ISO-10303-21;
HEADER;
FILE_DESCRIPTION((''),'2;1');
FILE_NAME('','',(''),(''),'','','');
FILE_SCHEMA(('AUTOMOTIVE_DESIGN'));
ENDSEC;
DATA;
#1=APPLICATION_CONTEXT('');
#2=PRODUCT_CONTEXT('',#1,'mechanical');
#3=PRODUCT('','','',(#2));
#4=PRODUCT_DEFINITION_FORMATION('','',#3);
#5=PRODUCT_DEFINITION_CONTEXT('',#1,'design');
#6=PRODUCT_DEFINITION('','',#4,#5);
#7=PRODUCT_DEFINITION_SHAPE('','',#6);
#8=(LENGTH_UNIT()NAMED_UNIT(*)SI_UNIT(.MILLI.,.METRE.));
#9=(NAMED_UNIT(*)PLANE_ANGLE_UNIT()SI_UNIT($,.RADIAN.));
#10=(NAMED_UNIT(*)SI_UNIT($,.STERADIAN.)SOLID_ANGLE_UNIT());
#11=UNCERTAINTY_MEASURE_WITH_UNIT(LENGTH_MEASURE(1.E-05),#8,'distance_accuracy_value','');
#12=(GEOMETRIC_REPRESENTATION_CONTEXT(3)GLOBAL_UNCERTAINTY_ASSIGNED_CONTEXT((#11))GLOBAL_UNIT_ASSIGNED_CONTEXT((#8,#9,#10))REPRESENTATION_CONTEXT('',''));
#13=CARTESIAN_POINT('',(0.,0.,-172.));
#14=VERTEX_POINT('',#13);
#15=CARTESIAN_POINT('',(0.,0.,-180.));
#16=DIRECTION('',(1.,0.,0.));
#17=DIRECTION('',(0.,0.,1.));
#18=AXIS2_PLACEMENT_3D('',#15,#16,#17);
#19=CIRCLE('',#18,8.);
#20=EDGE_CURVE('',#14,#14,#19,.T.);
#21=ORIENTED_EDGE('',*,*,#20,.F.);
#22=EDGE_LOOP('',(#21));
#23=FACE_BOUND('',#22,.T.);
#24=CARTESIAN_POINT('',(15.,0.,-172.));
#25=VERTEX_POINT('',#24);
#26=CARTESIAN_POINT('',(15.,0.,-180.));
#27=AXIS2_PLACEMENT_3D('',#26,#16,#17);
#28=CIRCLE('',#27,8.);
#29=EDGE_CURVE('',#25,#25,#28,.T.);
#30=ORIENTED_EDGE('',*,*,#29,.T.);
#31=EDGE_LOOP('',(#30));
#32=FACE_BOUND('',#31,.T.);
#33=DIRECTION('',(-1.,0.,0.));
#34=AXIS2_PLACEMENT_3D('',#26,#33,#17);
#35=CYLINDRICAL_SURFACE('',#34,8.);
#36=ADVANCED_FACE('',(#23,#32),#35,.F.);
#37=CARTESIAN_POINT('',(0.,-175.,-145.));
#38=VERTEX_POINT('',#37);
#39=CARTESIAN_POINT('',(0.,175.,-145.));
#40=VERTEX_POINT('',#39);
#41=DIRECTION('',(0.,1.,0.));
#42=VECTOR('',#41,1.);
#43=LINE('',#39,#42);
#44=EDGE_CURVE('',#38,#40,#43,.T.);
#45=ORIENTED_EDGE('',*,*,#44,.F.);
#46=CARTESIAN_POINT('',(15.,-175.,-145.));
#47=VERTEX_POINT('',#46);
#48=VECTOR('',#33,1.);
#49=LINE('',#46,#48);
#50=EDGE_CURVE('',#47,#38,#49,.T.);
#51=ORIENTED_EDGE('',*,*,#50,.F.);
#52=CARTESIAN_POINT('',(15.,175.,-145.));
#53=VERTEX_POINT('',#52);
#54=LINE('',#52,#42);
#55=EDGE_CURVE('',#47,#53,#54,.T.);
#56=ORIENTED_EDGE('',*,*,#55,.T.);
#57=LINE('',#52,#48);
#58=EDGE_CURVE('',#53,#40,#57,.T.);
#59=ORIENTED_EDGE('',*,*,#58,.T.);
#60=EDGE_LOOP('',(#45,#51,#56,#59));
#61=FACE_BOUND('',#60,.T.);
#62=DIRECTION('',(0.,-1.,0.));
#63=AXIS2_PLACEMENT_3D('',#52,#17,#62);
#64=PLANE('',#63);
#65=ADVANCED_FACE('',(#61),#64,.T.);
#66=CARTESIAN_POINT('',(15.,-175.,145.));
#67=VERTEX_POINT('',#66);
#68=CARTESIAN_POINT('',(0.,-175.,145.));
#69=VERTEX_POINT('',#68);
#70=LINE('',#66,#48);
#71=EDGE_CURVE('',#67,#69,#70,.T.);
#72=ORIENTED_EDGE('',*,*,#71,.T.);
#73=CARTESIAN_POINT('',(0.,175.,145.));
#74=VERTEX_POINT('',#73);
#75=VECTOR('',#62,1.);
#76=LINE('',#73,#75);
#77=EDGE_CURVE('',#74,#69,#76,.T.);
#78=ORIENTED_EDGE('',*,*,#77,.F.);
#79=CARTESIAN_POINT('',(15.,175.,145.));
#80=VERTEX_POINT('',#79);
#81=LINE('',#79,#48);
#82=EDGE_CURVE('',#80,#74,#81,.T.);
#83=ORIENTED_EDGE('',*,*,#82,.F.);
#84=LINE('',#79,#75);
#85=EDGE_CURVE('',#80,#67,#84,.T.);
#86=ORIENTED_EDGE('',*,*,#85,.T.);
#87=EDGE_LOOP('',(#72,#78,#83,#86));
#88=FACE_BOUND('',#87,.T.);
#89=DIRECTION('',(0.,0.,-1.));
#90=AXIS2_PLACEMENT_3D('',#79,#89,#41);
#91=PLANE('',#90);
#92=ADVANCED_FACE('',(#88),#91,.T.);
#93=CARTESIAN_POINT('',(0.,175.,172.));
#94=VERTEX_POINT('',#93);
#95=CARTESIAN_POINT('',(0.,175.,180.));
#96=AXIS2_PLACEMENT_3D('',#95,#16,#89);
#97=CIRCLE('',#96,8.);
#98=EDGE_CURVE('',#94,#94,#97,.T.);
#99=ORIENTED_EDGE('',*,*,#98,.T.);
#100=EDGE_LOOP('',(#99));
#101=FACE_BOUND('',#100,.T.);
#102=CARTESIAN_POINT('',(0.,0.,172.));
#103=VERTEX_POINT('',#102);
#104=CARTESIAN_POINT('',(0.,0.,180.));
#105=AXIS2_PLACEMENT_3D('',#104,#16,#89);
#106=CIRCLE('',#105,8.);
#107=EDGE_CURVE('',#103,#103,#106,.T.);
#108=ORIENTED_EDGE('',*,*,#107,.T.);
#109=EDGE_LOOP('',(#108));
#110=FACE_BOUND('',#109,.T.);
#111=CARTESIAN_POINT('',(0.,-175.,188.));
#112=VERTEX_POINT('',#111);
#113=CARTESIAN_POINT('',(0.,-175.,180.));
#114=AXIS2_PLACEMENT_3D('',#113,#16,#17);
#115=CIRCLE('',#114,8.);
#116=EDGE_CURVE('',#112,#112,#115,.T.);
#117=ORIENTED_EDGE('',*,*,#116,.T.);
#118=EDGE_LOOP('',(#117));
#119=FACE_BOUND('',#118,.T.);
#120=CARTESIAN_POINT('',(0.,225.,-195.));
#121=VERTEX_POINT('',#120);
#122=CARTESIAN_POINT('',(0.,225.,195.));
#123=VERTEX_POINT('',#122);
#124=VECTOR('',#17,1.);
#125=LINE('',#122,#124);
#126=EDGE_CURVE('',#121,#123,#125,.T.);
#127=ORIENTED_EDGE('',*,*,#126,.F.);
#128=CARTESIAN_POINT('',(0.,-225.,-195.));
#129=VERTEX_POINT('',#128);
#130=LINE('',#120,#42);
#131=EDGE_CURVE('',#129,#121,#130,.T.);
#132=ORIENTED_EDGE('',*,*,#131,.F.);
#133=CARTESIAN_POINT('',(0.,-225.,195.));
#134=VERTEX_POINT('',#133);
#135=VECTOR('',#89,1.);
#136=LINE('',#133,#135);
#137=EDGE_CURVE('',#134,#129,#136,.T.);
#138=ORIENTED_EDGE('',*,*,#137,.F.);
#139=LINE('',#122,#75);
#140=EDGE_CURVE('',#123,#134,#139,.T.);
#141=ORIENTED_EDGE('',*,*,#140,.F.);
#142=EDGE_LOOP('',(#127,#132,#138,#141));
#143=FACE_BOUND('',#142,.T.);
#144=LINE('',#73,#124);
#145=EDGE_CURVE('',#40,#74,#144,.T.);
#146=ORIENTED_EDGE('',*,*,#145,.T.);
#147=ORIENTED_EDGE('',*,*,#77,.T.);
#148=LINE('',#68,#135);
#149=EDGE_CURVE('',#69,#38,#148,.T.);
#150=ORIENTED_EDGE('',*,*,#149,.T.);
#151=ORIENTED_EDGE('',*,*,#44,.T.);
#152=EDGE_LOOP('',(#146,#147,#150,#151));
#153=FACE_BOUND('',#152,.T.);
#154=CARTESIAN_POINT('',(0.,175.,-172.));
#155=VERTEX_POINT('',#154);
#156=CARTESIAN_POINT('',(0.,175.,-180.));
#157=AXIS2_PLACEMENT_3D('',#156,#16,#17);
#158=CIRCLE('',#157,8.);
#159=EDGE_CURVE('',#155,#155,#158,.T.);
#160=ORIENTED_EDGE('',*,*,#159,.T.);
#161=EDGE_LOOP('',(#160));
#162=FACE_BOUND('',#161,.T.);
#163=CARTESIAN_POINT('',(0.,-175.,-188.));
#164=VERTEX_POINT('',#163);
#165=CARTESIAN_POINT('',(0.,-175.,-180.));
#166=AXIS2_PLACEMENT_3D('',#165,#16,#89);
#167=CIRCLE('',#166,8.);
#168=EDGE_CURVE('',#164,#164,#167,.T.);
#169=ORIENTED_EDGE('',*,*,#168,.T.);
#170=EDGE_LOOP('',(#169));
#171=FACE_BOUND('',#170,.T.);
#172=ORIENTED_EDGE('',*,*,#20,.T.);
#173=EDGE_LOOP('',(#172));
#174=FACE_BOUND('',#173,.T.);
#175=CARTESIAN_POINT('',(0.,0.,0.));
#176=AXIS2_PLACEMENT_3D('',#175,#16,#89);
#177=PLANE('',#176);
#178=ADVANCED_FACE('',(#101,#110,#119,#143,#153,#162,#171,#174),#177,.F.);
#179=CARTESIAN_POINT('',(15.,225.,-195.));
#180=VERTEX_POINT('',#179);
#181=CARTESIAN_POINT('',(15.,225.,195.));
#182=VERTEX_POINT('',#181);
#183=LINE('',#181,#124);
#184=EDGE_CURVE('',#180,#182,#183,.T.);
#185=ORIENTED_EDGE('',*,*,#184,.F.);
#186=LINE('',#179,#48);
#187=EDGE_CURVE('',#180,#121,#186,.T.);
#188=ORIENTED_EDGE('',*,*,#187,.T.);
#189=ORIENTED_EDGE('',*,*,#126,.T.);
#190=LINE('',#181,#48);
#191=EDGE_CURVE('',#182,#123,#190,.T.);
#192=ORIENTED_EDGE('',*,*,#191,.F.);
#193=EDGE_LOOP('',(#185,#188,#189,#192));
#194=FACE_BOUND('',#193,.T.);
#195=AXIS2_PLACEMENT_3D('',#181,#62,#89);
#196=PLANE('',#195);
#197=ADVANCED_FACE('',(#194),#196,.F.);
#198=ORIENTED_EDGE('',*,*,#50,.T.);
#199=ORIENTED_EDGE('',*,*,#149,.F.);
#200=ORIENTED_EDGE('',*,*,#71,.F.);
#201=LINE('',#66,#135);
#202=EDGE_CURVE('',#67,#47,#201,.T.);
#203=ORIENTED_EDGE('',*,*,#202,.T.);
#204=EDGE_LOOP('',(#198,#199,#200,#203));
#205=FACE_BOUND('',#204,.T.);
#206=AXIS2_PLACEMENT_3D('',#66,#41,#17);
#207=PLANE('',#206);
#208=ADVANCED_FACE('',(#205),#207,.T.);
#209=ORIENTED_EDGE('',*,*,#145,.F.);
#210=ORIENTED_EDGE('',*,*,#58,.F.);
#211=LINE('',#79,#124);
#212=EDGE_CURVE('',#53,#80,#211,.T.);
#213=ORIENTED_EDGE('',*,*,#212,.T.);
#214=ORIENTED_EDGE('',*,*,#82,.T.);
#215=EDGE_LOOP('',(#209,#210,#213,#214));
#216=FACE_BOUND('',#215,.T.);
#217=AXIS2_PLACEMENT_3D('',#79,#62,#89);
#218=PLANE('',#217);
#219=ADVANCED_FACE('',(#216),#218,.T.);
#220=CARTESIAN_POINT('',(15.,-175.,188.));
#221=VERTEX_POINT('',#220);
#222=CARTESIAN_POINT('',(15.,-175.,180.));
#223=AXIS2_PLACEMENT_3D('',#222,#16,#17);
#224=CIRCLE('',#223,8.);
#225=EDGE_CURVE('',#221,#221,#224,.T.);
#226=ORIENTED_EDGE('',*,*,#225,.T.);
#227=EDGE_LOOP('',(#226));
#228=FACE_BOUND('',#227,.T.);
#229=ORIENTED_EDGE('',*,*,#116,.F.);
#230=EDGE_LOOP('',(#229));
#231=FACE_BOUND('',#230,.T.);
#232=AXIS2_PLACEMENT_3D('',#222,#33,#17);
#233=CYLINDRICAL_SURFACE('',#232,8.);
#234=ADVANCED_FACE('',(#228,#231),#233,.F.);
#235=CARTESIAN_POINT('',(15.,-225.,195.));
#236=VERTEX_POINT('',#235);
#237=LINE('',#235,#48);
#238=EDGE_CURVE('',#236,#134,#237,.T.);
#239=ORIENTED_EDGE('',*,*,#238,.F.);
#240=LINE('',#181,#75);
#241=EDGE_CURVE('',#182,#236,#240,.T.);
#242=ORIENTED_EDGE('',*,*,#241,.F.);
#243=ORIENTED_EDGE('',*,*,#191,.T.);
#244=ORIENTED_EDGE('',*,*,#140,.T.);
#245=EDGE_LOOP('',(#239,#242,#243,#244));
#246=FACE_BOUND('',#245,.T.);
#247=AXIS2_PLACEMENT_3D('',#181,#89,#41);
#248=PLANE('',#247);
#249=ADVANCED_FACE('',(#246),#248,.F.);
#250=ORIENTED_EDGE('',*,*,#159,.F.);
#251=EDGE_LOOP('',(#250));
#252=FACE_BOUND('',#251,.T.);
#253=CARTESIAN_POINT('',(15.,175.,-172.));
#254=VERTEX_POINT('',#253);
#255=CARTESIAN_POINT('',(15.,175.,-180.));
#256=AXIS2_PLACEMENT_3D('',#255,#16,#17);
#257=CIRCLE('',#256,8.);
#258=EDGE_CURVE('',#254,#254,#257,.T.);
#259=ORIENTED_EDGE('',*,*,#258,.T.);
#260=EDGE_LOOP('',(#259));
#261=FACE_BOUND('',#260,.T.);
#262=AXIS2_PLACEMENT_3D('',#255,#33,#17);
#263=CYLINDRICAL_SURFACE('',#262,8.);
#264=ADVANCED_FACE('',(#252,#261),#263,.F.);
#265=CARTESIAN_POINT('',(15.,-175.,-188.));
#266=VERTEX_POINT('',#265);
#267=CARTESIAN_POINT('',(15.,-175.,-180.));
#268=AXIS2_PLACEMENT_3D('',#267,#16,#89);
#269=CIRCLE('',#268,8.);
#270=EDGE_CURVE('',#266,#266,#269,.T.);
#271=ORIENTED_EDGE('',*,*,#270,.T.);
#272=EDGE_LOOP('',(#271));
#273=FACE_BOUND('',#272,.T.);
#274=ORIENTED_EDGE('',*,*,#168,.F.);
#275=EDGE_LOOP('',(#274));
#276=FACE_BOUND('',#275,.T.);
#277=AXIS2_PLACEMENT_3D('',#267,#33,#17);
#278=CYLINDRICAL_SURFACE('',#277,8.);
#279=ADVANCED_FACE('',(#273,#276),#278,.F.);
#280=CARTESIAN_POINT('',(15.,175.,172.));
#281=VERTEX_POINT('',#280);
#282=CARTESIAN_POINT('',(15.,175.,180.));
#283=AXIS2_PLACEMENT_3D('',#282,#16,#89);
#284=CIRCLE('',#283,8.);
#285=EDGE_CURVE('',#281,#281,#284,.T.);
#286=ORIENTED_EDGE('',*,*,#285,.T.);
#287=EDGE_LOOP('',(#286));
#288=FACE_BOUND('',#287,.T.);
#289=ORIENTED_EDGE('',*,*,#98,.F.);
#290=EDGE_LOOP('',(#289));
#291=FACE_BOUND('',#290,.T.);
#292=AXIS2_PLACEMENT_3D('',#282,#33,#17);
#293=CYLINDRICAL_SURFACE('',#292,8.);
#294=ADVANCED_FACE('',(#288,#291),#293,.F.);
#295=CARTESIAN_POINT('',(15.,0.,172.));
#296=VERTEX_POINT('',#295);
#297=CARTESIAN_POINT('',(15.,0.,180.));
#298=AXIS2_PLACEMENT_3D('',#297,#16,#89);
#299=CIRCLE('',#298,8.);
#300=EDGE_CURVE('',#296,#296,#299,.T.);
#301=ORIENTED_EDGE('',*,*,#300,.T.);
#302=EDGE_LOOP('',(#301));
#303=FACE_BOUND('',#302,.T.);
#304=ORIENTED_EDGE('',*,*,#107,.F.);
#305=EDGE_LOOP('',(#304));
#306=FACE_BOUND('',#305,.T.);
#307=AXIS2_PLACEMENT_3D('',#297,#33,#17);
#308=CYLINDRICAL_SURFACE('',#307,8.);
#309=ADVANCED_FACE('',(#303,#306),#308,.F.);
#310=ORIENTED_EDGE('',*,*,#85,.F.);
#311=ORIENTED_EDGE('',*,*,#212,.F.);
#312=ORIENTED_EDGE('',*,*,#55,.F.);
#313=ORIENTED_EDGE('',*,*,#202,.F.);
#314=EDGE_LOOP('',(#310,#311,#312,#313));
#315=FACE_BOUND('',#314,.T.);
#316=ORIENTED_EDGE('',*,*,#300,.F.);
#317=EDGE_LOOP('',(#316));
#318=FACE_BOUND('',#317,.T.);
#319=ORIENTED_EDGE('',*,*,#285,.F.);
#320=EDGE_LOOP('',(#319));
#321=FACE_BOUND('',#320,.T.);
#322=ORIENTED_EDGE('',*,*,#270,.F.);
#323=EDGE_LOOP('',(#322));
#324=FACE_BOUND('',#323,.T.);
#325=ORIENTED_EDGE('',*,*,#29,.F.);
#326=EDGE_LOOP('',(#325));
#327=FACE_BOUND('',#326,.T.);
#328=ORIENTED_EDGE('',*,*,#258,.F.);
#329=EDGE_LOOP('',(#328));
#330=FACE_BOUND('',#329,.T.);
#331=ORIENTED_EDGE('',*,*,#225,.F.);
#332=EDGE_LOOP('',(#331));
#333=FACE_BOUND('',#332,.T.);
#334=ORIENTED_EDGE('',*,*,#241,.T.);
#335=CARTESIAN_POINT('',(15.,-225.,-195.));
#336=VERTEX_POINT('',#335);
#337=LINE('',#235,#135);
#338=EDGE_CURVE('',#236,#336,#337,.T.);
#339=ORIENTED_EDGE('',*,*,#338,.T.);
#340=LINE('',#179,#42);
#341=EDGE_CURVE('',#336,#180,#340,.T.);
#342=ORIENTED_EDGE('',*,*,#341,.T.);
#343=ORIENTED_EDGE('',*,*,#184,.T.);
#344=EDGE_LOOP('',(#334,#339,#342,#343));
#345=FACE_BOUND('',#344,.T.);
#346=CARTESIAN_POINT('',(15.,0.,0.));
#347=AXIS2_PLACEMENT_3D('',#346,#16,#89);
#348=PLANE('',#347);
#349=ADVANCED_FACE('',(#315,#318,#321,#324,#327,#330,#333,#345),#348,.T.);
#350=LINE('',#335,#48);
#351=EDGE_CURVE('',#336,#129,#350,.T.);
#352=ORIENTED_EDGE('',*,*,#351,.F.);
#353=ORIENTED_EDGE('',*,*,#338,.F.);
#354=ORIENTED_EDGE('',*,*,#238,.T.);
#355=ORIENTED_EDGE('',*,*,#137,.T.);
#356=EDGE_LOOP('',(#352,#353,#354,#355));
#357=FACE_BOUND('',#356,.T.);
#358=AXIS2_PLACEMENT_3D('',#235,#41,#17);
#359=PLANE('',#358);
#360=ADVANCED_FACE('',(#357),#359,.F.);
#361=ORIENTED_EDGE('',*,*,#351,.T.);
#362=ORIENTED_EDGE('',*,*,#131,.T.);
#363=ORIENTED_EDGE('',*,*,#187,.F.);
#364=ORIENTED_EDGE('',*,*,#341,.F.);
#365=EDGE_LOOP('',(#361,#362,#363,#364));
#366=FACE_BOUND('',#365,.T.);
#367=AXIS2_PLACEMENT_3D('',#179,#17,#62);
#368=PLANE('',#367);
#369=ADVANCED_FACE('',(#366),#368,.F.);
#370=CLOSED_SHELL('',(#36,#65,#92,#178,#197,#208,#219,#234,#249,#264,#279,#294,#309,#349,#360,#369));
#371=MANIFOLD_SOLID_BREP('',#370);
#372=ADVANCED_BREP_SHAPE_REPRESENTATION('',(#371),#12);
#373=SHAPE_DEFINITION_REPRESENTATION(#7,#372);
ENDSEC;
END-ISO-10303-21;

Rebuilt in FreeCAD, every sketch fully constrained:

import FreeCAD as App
import Part
import Sketcher

V = App.Vector


def add_polygon(sketch, points):
    """Adds a closed chain of lines whose ends are joined by coincident constraints."""
    first, n = sketch.GeometryCount, len(points)
    for a, b in zip(points, points[1:] + points[:1]):
        sketch.addGeometry(Part.LineSegment(App.Vector(*a, 0), App.Vector(*b, 0)), False)
    for i in range(n):
        sketch.addConstraint(Sketcher.Constraint("Coincident", first + i, 2, first + (i + 1) % n, 1))

doc = App.newDocument("Part")
body = doc.addObject("PartDesign::Body", "Body")

# Sketch on YZ plane
sketch1 = body.newObject("Sketcher::SketchObject", "Sketch")
sketch1.AttachmentSupport = (doc.getObject("YZ_Plane"), [""])
sketch1.MapMode = "FlatFace"
add_polygon(sketch1, [(225, 195), (-225, 195), (-225, -195), (225, -195)])  # lines 0-3
sketch1.addGeometry(Part.Circle(V(-175, 180, 0), V(0, 0, 1), 8), False)  # 4
sketch1.addGeometry(Part.Circle(V(-175, -180, 0), V(0, 0, 1), 8), False)  # 5
sketch1.addGeometry(Part.Circle(V(0, 180, 0), V(0, 0, 1), 8), False)  # 6
sketch1.addGeometry(Part.Circle(V(175, 180, 0), V(0, 0, 1), 8), False)  # 7
add_polygon(sketch1, [(-175, -145), (-175, 145), (175, 145), (175, -145)])  # lines 8-11
sketch1.addGeometry(Part.Circle(V(0, -180, 0), V(0, 0, 1), 8), False)  # 12
sketch1.addGeometry(Part.Circle(V(175, -180, 0), V(0, 0, 1), 8), False)  # 13
sketch1.addConstraint([
    Sketcher.Constraint("Horizontal", 0),
    Sketcher.Constraint("Vertical", 1),
    Sketcher.Constraint("Horizontal", 2),
    Sketcher.Constraint("Vertical", 3),
    Sketcher.Constraint("Vertical", 8),
    Sketcher.Constraint("Horizontal", 9),
    Sketcher.Constraint("Vertical", 10),
    Sketcher.Constraint("Horizontal", 11),
    Sketcher.Constraint("Equal", 4, 5),
    Sketcher.Constraint("Equal", 5, 6),
    Sketcher.Constraint("Equal", 6, 7),
    Sketcher.Constraint("Equal", 7, 12),
    Sketcher.Constraint("Equal", 12, 13),
    Sketcher.Constraint("Symmetric", 5, 3, 7, 3, -1, 1),
    Sketcher.Constraint("Symmetric", 6, 3, 12, 3, -1, 1),
    Sketcher.Constraint("Symmetric", 4, 3, 13, 3, -1, 1),
    Sketcher.Constraint("Symmetric", 0, 2, 2, 2, -1, 1),
    Sketcher.Constraint("Symmetric", 8, 2, 10, 2, -1, 1),
    Sketcher.Constraint("Symmetric", 4, 3, 7, 3, -2),
    Sketcher.Constraint("PointOnObject", 6, 3, -2),
    Sketcher.Constraint("Horizontal", 4, 3, 6, 3),
    Sketcher.Constraint("Vertical", 5, 3, 8, 2),
    Sketcher.Constraint("Diameter", 4, 16.0),
    Sketcher.Constraint("DistanceX", 0, 2, 0, 1, 450.0),
    Sketcher.Constraint("DistanceX", 9, 1, 9, 2, 350.0),
    Sketcher.Constraint("DistanceY", 1, 2, 1, 1, 390.0),
    Sketcher.Constraint("DistanceY", 8, 1, 8, 2, 290.0),
    Sketcher.Constraint("DistanceY", -1, 1, 4, 3, 180.0),
])
pad1 = body.newObject("PartDesign::Pad", "Pad")
pad1.Profile = sketch1
pad1.Length = 15

doc.recompute()
